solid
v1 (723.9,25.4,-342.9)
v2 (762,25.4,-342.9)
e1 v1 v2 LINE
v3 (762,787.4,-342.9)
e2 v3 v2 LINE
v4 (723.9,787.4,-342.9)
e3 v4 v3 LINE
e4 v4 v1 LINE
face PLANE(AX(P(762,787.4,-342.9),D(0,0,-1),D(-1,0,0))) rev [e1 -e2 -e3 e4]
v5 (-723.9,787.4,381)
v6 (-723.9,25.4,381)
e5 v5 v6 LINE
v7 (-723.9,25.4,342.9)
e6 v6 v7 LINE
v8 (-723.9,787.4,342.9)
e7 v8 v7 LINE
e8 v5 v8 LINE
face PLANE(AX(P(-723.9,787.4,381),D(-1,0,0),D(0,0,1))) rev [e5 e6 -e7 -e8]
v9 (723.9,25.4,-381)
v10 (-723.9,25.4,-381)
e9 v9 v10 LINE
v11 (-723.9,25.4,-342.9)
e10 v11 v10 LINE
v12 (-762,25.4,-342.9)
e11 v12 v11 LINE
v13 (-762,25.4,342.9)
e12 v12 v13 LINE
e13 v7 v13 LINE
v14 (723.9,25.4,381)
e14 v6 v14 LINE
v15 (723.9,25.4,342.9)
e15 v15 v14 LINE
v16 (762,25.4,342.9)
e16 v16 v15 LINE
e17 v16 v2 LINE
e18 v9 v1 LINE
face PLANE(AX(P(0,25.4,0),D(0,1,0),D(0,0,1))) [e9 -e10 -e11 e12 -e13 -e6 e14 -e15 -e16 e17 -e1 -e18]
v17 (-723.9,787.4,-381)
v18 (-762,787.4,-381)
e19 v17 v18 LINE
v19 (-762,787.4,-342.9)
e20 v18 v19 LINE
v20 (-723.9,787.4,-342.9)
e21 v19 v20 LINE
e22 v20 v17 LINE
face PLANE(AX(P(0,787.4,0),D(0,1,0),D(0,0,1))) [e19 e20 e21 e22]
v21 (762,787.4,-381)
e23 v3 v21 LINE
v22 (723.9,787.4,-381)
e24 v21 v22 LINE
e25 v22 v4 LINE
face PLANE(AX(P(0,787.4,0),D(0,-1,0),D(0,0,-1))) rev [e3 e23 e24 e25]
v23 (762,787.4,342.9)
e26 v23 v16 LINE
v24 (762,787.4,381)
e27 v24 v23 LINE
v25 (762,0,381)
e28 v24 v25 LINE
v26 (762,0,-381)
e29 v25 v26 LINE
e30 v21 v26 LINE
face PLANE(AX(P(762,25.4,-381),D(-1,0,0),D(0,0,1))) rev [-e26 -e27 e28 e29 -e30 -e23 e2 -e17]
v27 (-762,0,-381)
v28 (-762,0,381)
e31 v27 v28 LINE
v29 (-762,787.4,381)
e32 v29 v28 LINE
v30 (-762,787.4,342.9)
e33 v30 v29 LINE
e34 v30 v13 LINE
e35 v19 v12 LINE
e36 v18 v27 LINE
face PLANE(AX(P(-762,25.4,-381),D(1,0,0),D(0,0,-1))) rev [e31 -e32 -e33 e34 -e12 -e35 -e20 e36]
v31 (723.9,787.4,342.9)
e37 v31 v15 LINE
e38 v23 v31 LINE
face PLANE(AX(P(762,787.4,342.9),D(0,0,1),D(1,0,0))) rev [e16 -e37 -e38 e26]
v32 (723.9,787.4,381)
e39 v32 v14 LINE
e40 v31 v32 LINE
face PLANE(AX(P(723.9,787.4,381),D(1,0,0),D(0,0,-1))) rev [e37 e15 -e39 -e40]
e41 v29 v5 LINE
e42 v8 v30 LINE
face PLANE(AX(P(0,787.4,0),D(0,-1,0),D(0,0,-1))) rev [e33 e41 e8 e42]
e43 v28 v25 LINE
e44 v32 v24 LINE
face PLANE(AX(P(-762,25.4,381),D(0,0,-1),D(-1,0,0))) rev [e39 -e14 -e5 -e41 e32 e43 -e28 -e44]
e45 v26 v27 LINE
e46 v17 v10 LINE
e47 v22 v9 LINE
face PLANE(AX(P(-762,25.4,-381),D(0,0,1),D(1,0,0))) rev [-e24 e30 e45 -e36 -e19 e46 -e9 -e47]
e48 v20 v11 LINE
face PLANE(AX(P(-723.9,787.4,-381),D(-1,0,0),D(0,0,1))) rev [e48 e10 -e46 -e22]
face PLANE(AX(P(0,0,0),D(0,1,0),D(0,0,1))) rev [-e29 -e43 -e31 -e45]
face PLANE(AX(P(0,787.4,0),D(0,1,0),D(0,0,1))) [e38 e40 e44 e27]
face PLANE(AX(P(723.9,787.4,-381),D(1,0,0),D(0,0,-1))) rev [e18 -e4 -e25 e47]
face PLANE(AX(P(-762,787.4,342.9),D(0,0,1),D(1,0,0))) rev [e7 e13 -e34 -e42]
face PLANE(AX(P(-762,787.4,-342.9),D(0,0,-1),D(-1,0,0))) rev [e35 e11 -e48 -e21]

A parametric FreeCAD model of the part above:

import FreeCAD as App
import Part
import Sketcher

V = App.Vector
Q = App.Units.Quantity

doc = App.newDocument("Part")
params = doc.addObject("Spreadsheet::Sheet", "Params")
for row, (alias, value) in enumerate([
    ("sketch1_width", "60 in"),
    ("sketch1_height", "30 in"),
    ("pad1_length", "1 in"),
    ("sketch2_width", "1.5 in"),
    ("pad2_length", "30 in"),
], start=1):
    params.set(f"A{row}", alias)
    params.set(f"B{row}", "=" + value)
    params.setAlias(f"B{row}", alias)

body = doc.addObject("PartDesign::Body", "Body")

# Sketch on XZ plane
sketch1 = body.newObject("Sketcher::SketchObject", "Sketch")
sketch1.AttachmentSupport = (doc.getObject("XZ_Plane"), [""])
sketch1.MapMode = "FlatFace"
sketch1.addGeometry(Part.LineSegment(V(-762, -381, 0), V(-762, 381, 0)), False)
sketch1.addGeometry(Part.LineSegment(V(-762, 381, 0), V(762, 381, 0)), False)
sketch1.addGeometry(Part.LineSegment(V(762, 381, 0), V(762, -381, 0)), False)
sketch1.addGeometry(Part.LineSegment(V(762, -381, 0), V(-762, -381, 0)), False)
sketch1.addConstraint(Sketcher.Constraint("Coincident", 0, 2, 1, 1))
sketch1.addConstraint(Sketcher.Constraint("Coincident", 1, 2, 2, 1))
sketch1.addConstraint(Sketcher.Constraint("Coincident", 2, 2, 3, 1))
sketch1.addConstraint(Sketcher.Constraint("Coincident", 3, 2, 0, 1))
sketch1.addConstraint(Sketcher.Constraint("Vertical", 0))
sketch1.addConstraint(Sketcher.Constraint("Horizontal", 1))
sketch1.addConstraint(Sketcher.Constraint("Vertical", 2))
sketch1.addConstraint(Sketcher.Constraint("Horizontal", 3))
sketch1.addConstraint(Sketcher.Constraint("Symmetric", 0, 2, 2, 2, -1, 1))
sketch1.addConstraint(Sketcher.Constraint("DistanceX", 1, 1, 1, 2, Q("60 in")))
sketch1.addConstraint(Sketcher.Constraint("DistanceY", 0, 1, 0, 2, Q("30 in")))
sketch1.setExpression("Constraints[9]", "Params.sketch1_width")
sketch1.setExpression("Constraints[10]", "Params.sketch1_height")
pad1 = body.newObject("PartDesign::Pad", "Pad")
pad1.Profile = sketch1
pad1.setExpression("Length", "Params.pad1_length")
pad1.Reversed = True

# Sketch on XZ plane
sketch2 = body.newObject("Sketcher::SketchObject", "Sketch001")
sketch2.AttachmentSupport = (doc.getObject("XZ_Plane"), [""])
sketch2.MapMode = "FlatFace"
sketch2.AttachmentOffset = App.Placement(V(0, 0, -1 * 25.4), App.Rotation())
sketch2.addGeometry(Part.LineSegment(V(-762, -381, 0), V(-762, -343, 0)), False)
sketch2.addGeometry(Part.LineSegment(V(-762, -343, 0), V(-724, -343, 0)), False)
sketch2.addGeometry(Part.LineSegment(V(-724, -343, 0), V(-724, -381, 0)), False)
sketch2.addGeometry(Part.LineSegment(V(-724, -381, 0), V(-762, -381, 0)), False)
sketch2.addGeometry(Part.LineSegment(V(-762, 343, 0), V(-762, 381, 0)), False)
sketch2.addGeometry(Part.LineSegment(V(-762, 381, 0), V(-724, 381, 0)), False)
sketch2.addGeometry(Part.LineSegment(V(-724, 381, 0), V(-724, 343, 0)), False)
sketch2.addGeometry(Part.LineSegment(V(-724, 343, 0), V(-762, 343, 0)), False)
sketch2.addGeometry(Part.LineSegment(V(724, -381, 0), V(724, -343, 0)), False)
sketch2.addGeometry(Part.LineSegment(V(724, -343, 0), V(762, -343, 0)), False)
sketch2.addGeometry(Part.LineSegment(V(762, -343, 0), V(762, -381, 0)), False)
sketch2.addGeometry(Part.LineSegment(V(762, -381, 0), V(724, -381, 0)), False)
sketch2.addGeometry(Part.LineSegment(V(724, 343, 0), V(724, 381, 0)), False)
sketch2.addGeometry(Part.LineSegment(V(724, 381, 0), V(762, 381, 0)), False)
sketch2.addGeometry(Part.LineSegment(V(762, 381, 0), V(762, 343, 0)), False)
sketch2.addGeometry(Part.LineSegment(V(762, 343, 0), V(724, 343, 0)), False)
sketch2.addConstraint(Sketcher.Constraint("Coincident", 0, 2, 1, 1))
sketch2.addConstraint(Sketcher.Constraint("Coincident", 1, 2, 2, 1))
sketch2.addConstraint(Sketcher.Constraint("Coincident", 2, 2, 3, 1))
sketch2.addConstraint(Sketcher.Constraint("Coincident", 3, 2, 0, 1))
sketch2.addConstraint(Sketcher.Constraint("Coincident", 4, 2, 5, 1))
sketch2.addConstraint(Sketcher.Constraint("Coincident", 5, 2, 6, 1))
sketch2.addConstraint(Sketcher.Constraint("Coincident", 6, 2, 7, 1))
sketch2.addConstraint(Sketcher.Constraint("Coincident", 7, 2, 4, 1))
sketch2.addConstraint(Sketcher.Constraint("Coincident", 8, 2, 9, 1))
sketch2.addConstraint(Sketcher.Constraint("Coincident", 9, 2, 10, 1))
sketch2.addConstraint(Sketcher.Constraint("Coincident", 10, 2, 11, 1))
sketch2.addConstraint(Sketcher.Constraint("Coincident", 11, 2, 8, 1))
sketch2.addConstraint(Sketcher.Constraint("Coincident", 12, 2, 13, 1))
sketch2.addConstraint(Sketcher.Constraint("Coincident", 13, 2, 14, 1))
sketch2.addConstraint(Sketcher.Constraint("Coincident", 14, 2, 15, 1))
sketch2.addConstraint(Sketcher.Constraint("Coincident", 15, 2, 12, 1))
sketch2.addConstraint(Sketcher.Constraint("Vertical", 0))
sketch2.addConstraint(Sketcher.Constraint("Horizontal", 1))
sketch2.addConstraint(Sketcher.Constraint("Vertical", 2))
sketch2.addConstraint(Sketcher.Constraint("Horizontal", 3))
sketch2.addConstraint(Sketcher.Constraint("Vertical", 4))
sketch2.addConstraint(Sketcher.Constraint("Horizontal", 5))
sketch2.addConstraint(Sketcher.Constraint("Vertical", 6))
sketch2.addConstraint(Sketcher.Constraint("Horizontal", 7))
sketch2.addConstraint(Sketcher.Constraint("Vertical", 8))
sketch2.addConstraint(Sketcher.Constraint("Horizontal", 9))
sketch2.addConstraint(Sketcher.Constraint("Vertical", 10))
sketch2.addConstraint(Sketcher.Constraint("Horizontal", 11))
sketch2.addConstraint(Sketcher.Constraint("Vertical", 12))
sketch2.addConstraint(Sketcher.Constraint("Horizontal", 13))
sketch2.addConstraint(Sketcher.Constraint("Vertical", 14))
sketch2.addConstraint(Sketcher.Constraint("Horizontal", 15))
sketch2.addConstraint(Sketcher.Constraint("Symmetric", 6, 2, 8, 2, -1, 1))
sketch2.addConstraint(Sketcher.Constraint("Symmetric", 4, 2, 10, 2, -1, 1))
sketch2.addConstraint(Sketcher.Constraint("Symmetric", 2, 2, 12, 2, -1, 1))
sketch2.addConstraint(Sketcher.Constraint("Symmetric", 0, 2, 14, 2, -1, 1))
sketch2.addConstraint(Sketcher.Constraint("Symmetric", 1, 2, 8, 2, -2))
sketch2.addConstraint(Sketcher.Constraint("Symmetric", 3, 2, 10, 2, -2))
sketch2.addConstraint(Sketcher.Constraint("Equal", 15, 0))
sketch2.addConstraint(Sketcher.Constraint("DistanceX", 1, 1, 1, 2, Q("1.5 in")))
sketch2.addConstraint(Sketcher.Constraint("DistanceX", 0, 2, -1, 1, Q("30 in")))
sketch2.addConstraint(Sketcher.Constraint("DistanceY", 2, 2, -1, 1, Q("15 in")))
sketch2.setExpression("Constraints[39]", "Params.sketch2_width")
pad2 = body.newObject("PartDesign::Pad", "Pad001")
pad2.Profile = sketch2
pad2.setExpression("Length", "Params.pad2_length")
pad2.Reversed = True

doc.recompute()
